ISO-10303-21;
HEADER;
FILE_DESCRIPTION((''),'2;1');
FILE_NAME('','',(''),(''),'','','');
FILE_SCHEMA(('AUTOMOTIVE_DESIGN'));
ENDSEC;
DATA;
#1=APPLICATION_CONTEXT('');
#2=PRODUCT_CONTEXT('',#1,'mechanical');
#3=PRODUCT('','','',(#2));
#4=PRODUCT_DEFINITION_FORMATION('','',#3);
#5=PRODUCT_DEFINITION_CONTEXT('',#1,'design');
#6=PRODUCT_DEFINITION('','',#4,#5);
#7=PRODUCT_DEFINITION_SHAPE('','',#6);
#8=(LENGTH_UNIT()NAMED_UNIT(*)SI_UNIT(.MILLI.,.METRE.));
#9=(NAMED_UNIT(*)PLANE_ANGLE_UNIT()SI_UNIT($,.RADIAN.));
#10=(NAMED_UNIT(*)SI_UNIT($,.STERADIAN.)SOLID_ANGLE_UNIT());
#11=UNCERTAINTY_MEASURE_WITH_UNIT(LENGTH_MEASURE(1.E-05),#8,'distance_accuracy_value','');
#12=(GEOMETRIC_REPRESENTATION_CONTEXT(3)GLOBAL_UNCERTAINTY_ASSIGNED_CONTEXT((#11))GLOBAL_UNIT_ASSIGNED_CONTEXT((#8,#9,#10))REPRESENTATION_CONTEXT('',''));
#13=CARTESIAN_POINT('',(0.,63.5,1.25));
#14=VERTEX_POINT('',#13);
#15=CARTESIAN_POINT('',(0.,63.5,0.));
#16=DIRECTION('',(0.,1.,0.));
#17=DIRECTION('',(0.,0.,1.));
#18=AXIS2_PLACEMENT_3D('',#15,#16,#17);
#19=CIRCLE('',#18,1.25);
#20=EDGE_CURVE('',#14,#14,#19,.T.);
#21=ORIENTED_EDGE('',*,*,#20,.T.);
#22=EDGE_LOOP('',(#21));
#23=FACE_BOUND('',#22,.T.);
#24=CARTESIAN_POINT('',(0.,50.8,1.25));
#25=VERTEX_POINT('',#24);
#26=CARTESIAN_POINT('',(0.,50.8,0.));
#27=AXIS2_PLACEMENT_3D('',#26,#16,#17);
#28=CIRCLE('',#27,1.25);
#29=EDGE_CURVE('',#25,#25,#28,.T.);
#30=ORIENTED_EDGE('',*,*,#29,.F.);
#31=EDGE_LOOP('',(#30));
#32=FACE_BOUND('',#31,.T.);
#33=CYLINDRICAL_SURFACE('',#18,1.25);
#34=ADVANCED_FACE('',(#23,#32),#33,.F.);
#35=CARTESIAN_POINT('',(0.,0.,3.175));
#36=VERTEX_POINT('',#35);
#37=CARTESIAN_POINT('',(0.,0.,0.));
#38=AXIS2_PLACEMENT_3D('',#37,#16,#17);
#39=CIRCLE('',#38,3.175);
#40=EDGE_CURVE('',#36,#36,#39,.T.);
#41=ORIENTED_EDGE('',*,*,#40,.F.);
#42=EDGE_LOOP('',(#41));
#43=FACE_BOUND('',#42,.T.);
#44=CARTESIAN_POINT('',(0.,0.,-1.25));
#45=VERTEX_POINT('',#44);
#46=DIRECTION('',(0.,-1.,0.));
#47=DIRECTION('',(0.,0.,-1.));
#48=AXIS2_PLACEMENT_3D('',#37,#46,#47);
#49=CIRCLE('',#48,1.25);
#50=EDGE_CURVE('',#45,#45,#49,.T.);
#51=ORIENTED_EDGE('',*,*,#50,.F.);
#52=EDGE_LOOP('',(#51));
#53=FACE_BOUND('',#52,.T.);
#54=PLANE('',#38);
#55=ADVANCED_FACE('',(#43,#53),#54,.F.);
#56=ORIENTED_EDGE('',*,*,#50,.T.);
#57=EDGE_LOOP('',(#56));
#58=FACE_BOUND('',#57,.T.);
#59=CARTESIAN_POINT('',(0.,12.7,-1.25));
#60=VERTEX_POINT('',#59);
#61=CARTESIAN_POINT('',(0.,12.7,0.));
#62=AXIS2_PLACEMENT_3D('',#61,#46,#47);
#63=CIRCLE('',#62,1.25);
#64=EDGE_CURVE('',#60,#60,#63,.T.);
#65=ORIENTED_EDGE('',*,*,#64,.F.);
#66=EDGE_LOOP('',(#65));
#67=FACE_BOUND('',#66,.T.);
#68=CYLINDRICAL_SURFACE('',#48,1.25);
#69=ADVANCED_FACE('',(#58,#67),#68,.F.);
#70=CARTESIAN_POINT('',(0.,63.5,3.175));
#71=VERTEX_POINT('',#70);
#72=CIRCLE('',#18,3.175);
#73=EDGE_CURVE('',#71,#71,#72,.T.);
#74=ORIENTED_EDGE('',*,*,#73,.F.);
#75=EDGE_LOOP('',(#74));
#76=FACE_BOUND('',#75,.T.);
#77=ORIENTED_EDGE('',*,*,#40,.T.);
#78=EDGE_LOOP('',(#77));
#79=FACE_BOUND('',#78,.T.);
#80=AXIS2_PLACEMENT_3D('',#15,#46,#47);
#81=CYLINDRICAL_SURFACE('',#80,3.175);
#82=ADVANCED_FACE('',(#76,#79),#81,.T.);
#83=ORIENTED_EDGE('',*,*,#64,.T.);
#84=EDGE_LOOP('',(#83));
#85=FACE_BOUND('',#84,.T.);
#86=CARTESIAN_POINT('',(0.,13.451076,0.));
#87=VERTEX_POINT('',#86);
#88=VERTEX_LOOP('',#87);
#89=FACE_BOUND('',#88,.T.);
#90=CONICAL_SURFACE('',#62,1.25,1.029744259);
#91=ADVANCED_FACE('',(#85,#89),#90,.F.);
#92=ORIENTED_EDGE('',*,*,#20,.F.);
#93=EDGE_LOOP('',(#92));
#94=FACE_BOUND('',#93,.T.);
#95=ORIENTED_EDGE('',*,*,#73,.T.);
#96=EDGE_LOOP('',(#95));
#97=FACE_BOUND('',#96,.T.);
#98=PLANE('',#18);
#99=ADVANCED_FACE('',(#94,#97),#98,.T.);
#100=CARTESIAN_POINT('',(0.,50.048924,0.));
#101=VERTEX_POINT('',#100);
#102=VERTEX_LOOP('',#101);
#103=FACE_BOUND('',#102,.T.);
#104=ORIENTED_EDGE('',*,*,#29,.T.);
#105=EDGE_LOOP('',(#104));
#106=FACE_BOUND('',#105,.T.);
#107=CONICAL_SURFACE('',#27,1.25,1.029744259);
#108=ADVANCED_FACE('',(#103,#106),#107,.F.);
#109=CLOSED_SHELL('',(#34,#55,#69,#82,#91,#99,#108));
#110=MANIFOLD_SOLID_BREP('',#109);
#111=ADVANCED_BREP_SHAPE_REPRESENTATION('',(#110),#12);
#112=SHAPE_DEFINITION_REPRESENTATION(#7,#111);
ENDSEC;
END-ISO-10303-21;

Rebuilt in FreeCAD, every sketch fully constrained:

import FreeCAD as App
import Part
import Sketcher
from FreeCAD import Vector
Q = App.Units.Quantity

doc = App.newDocument("Part")
params = doc.addObject("Spreadsheet::Sheet", "Params")
for row, (alias, value) in enumerate([
    ("sketch1_diameter", "0.25 in"),
    ("pad1_length", "2.5 in"),
    ("hole_diameter", "2.5 mm"),
    ("hole_depth", "0.5 in"),
    ("hole2_diameter", "2.5 mm"),
    ("hole2_depth", "0.5 in"),
], start=1):
    params.set(f"A{row}", alias)
    params.set(f"B{row}", "=" + value)
    params.setAlias(f"B{row}", alias)

body = doc.addObject("PartDesign::Body", "Body")

sketch1 = doc.addObject("Sketcher::SketchObject", "Sketch")
body.addObject(sketch1)
sketch1.AttachmentSupport = (doc.XZ_Plane, [""])
sketch1.MapMode = "FlatFace"
sketch1.addGeometry(Part.Circle(Vector(0, 0, 0), Vector(0, 0, 1), 3.2), False)
sketch1.addConstraint([
    Sketcher.Constraint("Coincident", 0, 3, -1, 1),
    Sketcher.Constraint("Diameter", 0, Q("0.25 in")),
])
sketch1.setExpression("Constraints[1]", "Params.sketch1_diameter")
pad1 = doc.addObject("PartDesign::Pad", "Pad")
body.addObject(pad1)
pad1.Profile = sketch1
pad1.setExpression("Length", "Params.pad1_length")
pad1.Reversed = True

sketch2 = doc.addObject("Sketcher::SketchObject", "Sketch001")
body.addObject(sketch2)
sketch2.AttachmentSupport = (doc.XZ_Plane, [""])
sketch2.MapMode = "FlatFace"
sketch2.AttachmentOffset = App.Placement(Vector(0, 0, -2.5 * 25.4), App.Rotation())
sketch2.addGeometry(Part.Circle(Vector(0, 0, 0), Vector(0, 0, 1), 1.2), False)
sketch2.addConstraint([
    Sketcher.Constraint("Coincident", 0, 3, -1, 1),
    Sketcher.Constraint("Diameter", 0, Q("2.5 mm")),
])
doc.recompute()
hole = doc.addObject("PartDesign::Hole", "Hole")
body.addObject(hole)
hole.Profile = sketch2
hole.ThreadType = "None"
hole.setExpression("Diameter", "Params.hole_diameter")
hole.DepthType = "Dimension"
hole.setExpression("Depth", "Params.hole_depth")
hole.DrillPoint = "Angled"
hole.DrillPointAngle = 118
hole.Reversed = True

sketch3 = doc.addObject("Sketcher::SketchObject", "Sketch002")
body.addObject(sketch3)
sketch3.AttachmentSupport = (doc.XZ_Plane, [""])
sketch3.MapMode = "FlatFace"
sketch3.addGeometry(Part.Circle(Vector(0, 0, 0), Vector(0, 0, 1), 1.2), False)
sketch3.addConstraint([
    Sketcher.Constraint("Coincident", 0, 3, -1, 1),
    Sketcher.Constraint("Diameter", 0, Q("2.5 mm")),
])
doc.recompute()
hole2 = doc.addObject("PartDesign::Hole", "Hole001")
body.addObject(hole2)
hole2.Profile = sketch3
hole2.ThreadType = "None"
hole2.setExpression("Diameter", "Params.hole2_diameter")
hole2.DepthType = "Dimension"
hole2.setExpression("Depth", "Params.hole2_depth")
hole2.DrillPoint = "Angled"
hole2.DrillPointAngle = 118

doc.recompute()
